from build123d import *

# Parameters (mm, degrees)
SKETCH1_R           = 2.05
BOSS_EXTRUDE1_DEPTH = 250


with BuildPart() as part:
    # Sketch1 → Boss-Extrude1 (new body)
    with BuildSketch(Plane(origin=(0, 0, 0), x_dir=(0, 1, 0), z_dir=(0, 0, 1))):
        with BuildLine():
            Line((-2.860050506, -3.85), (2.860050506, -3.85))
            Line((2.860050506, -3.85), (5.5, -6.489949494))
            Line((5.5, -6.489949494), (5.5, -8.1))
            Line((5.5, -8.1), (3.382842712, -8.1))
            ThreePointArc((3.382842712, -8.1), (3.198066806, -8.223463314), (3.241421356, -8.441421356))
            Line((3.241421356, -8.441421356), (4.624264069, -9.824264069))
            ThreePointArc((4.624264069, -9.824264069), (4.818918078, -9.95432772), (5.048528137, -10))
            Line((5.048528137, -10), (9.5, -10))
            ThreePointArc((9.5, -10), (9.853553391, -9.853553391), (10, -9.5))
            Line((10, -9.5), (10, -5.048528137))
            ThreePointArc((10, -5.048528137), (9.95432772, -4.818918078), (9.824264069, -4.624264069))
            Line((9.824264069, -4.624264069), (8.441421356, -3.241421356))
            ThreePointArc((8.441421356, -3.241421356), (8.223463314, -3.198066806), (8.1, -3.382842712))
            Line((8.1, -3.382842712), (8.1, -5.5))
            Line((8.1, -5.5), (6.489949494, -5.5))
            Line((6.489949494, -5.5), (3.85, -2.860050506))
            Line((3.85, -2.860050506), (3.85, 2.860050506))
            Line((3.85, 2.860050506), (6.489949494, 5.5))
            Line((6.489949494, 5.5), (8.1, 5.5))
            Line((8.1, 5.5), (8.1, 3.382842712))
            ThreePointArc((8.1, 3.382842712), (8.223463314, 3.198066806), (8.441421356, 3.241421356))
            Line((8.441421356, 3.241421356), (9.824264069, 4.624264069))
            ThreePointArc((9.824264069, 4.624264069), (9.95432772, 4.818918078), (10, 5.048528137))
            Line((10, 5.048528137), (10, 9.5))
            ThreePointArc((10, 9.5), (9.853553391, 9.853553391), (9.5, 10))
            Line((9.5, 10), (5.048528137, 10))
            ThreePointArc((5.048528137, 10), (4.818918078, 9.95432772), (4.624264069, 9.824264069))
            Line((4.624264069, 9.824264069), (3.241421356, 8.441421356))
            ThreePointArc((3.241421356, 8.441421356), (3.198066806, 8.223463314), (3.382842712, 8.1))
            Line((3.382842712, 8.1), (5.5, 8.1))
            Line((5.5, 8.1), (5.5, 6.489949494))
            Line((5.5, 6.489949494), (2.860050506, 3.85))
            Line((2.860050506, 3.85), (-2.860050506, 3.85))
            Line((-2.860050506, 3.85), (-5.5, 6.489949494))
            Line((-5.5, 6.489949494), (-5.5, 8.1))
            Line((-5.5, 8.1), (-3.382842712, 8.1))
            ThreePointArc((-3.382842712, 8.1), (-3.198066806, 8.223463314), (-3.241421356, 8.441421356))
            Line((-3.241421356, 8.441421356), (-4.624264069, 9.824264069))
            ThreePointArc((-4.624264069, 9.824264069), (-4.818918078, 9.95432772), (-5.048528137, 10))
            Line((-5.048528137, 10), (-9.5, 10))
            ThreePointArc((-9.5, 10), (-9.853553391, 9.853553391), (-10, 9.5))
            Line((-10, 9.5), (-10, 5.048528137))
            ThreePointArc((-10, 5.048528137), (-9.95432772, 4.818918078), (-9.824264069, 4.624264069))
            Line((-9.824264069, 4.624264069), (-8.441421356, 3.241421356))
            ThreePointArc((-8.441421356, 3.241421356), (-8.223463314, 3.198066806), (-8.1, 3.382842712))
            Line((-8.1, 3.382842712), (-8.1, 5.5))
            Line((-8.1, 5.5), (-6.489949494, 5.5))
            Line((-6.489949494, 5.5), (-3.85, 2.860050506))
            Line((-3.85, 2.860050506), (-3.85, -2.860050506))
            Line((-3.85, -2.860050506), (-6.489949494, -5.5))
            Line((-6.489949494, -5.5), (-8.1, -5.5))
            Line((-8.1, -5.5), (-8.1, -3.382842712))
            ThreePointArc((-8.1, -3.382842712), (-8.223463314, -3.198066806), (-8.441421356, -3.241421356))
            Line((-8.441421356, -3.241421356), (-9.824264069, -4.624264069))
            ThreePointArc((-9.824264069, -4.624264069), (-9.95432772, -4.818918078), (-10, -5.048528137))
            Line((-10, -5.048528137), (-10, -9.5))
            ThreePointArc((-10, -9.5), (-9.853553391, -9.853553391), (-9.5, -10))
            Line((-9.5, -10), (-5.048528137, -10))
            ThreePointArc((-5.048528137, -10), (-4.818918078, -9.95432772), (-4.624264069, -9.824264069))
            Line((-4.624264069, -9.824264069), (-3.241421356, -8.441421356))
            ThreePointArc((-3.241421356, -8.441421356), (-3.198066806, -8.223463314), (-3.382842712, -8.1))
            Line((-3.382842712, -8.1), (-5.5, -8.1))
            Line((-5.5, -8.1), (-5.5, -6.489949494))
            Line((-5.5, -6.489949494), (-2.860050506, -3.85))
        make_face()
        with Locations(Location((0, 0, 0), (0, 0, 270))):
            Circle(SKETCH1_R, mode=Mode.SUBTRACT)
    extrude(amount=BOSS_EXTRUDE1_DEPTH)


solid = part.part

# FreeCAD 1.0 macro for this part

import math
import FreeCAD as App
import Part
import Sketcher

V = App.Vector

doc = App.newDocument("Part")
body = doc.addObject("PartDesign::Body", "Body")

# Sketch on XY plane
sketch1 = body.newObject("Sketcher::SketchObject", "Sketch")
sketch1.AttachmentSupport = (doc.getObject("XY_Plane"), [""])
sketch1.MapMode = "FlatFace"
sketch1.addGeometry([
    Part.LineSegment(V(3.85, -2.86, 0), V(3.85, 2.86, 0)),  # 0
    Part.LineSegment(V(3.85, 2.86, 0), V(6.49, 5.5, 0)),  # 1
    Part.LineSegment(V(6.49, 5.5, 0), V(8.1, 5.5, 0)),  # 2
    Part.LineSegment(V(8.1, 5.5, 0), V(8.1, 3.38, 0)),  # 3
    Part.ArcOfCircle(Part.Circle(V(8.3, 3.38, 0), V(0, 0, 1), 0.2), math.radians(-180), math.radians(-45)),  # 4
    Part.LineSegment(V(8.44, 3.24, 0), V(9.82, 4.62, 0)),  # 5
    Part.ArcOfCircle(Part.Circle(V(9.4, 5.05, 0), V(0, 0, 1), 0.6), math.radians(-45), math.radians(0)),  # 6
    Part.LineSegment(V(10, 5.05, 0), V(10, 9.5, 0)),  # 7
    Part.ArcOfCircle(Part.Circle(V(9.5, 9.5, 0), V(0, 0, 1), 0.5), math.radians(0), math.radians(90)),  # 8
    Part.LineSegment(V(9.5, 10, 0), V(5.05, 10, 0)),  # 9
    Part.ArcOfCircle(Part.Circle(V(5.05, 9.4, 0), V(0, 0, 1), 0.6), math.radians(90), math.radians(135)),  # 10
    Part.LineSegment(V(4.62, 9.82, 0), V(3.24, 8.44, 0)),  # 11
    Part.ArcOfCircle(Part.Circle(V(3.38, 8.3, 0), V(0, 0, 1), 0.2), math.radians(135), math.radians(270)),  # 12
    Part.LineSegment(V(3.38, 8.1, 0), V(5.5, 8.1, 0)),  # 13
    Part.LineSegment(V(5.5, 8.1, 0), V(5.5, 6.49, 0)),  # 14
    Part.LineSegment(V(5.5, 6.49, 0), V(2.86, 3.85, 0)),  # 15
    Part.LineSegment(V(2.86, 3.85, 0), V(-2.86, 3.85, 0)),  # 16
    Part.LineSegment(V(-2.86, 3.85, 0), V(-5.5, 6.49, 0)),  # 17
    Part.LineSegment(V(-5.5, 6.49, 0), V(-5.5, 8.1, 0)),  # 18
    Part.LineSegment(V(-5.5, 8.1, 0), V(-3.38, 8.1, 0)),  # 19
    Part.ArcOfCircle(Part.Circle(V(-3.38, 8.3, 0), V(0, 0, 1), 0.2), math.radians(-90), math.radians(45)),  # 20
    Part.LineSegment(V(-3.24, 8.44, 0), V(-4.62, 9.82, 0)),  # 21
    Part.ArcOfCircle(Part.Circle(V(-5.05, 9.4, 0), V(0, 0, 1), 0.6), math.radians(45), math.radians(90)),  # 22
    Part.LineSegment(V(-5.05, 10, 0), V(-9.5, 10, 0)),  # 23
    Part.ArcOfCircle(Part.Circle(V(-9.5, 9.5, 0), V(0, 0, 1), 0.5), math.radians(90), math.radians(180)),  # 24
    Part.LineSegment(V(-10, 9.5, 0), V(-10, 5.05, 0)),  # 25
    Part.ArcOfCircle(Part.Circle(V(-9.4, 5.05, 0), V(0, 0, 1), 0.6), math.radians(180), math.radians(225)),  # 26
    Part.LineSegment(V(-9.82, 4.62, 0), V(-8.44, 3.24, 0)),  # 27
    Part.ArcOfCircle(Part.Circle(V(-8.3, 3.38, 0), V(0, 0, 1), 0.2), math.radians(-135), math.radians(0)),  # 28
    Part.LineSegment(V(-8.1, 3.38, 0), V(-8.1, 5.5, 0)),  # 29
    Part.LineSegment(V(-8.1, 5.5, 0), V(-6.49, 5.5, 0)),  # 30
    Part.LineSegment(V(-6.49, 5.5, 0), V(-3.85, 2.86, 0)),  # 31
    Part.LineSegment(V(-3.85, 2.86, 0), V(-3.85, -2.86, 0)),  # 32
    Part.LineSegment(V(-3.85, -2.86, 0), V(-6.49, -5.5, 0)),  # 33
    Part.LineSegment(V(-6.49, -5.5, 0), V(-8.1, -5.5, 0)),  # 34
    Part.LineSegment(V(-8.1, -5.5, 0), V(-8.1, -3.38, 0)),  # 35
    Part.ArcOfCircle(Part.Circle(V(-8.3, -3.38, 0), V(0, 0, 1), 0.2), math.radians(0), math.radians(135)),  # 36
    Part.LineSegment(V(-8.44, -3.24, 0), V(-9.82, -4.62, 0)),  # 37
    Part.ArcOfCircle(Part.Circle(V(-9.4, -5.05, 0), V(0, 0, 1), 0.6), math.radians(135), math.radians(180)),  # 38
    Part.LineSegment(V(-10, -5.05, 0), V(-10, -9.5, 0)),  # 39
    Part.ArcOfCircle(Part.Circle(V(-9.5, -9.5, 0), V(0, 0, 1), 0.5), math.radians(180), math.radians(270)),  # 40
    Part.LineSegment(V(-9.5, -10, 0), V(-5.05, -10, 0)),  # 41
    Part.ArcOfCircle(Part.Circle(V(-5.05, -9.4, 0), V(0, 0, 1), 0.6), math.radians(-90), math.radians(-45)),  # 42
    Part.LineSegment(V(-4.62, -9.82, 0), V(-3.24, -8.44, 0)),  # 43
    Part.ArcOfCircle(Part.Circle(V(-3.38, -8.3, 0), V(0, 0, 1), 0.2), math.radians(-45), math.radians(90)),  # 44
    Part.LineSegment(V(-3.38, -8.1, 0), V(-5.5, -8.1, 0)),  # 45
    Part.LineSegment(V(-5.5, -8.1, 0), V(-5.5, -6.49, 0)),  # 46
    Part.LineSegment(V(-5.5, -6.49, 0), V(-2.86, -3.85, 0)),  # 47
    Part.LineSegment(V(-2.86, -3.85, 0), V(2.86, -3.85, 0)),  # 48
    Part.LineSegment(V(2.86, -3.85, 0), V(5.5, -6.49, 0)),  # 49
    Part.LineSegment(V(5.5, -6.49, 0), V(5.5, -8.1, 0)),  # 50
    Part.LineSegment(V(5.5, -8.1, 0), V(3.38, -8.1, 0)),  # 51
    Part.ArcOfCircle(Part.Circle(V(3.38, -8.3, 0), V(0, 0, 1), 0.2), math.radians(90), math.radians(225)),  # 52
    Part.LineSegment(V(3.24, -8.44, 0), V(4.62, -9.82, 0)),  # 53
    Part.ArcOfCircle(Part.Circle(V(5.05, -9.4, 0), V(0, 0, 1), 0.6), math.radians(-135), math.radians(-90)),  # 54
    Part.LineSegment(V(5.05, -10, 0), V(9.5, -10, 0)),  # 55
    Part.ArcOfCircle(Part.Circle(V(9.5, -9.5, 0), V(0, 0, 1), 0.5), math.radians(-90), math.radians(0)),  # 56
    Part.LineSegment(V(10, -9.5, 0), V(10, -5.05, 0)),  # 57
    Part.ArcOfCircle(Part.Circle(V(9.4, -5.05, 0), V(0, 0, 1), 0.6), math.radians(0), math.radians(45)),  # 58
    Part.LineSegment(V(9.82, -4.62, 0), V(8.44, -3.24, 0)),  # 59
    Part.ArcOfCircle(Part.Circle(V(8.3, -3.38, 0), V(0, 0, 1), 0.2), math.radians(45), math.radians(180)),  # 60
    Part.LineSegment(V(8.1, -3.38, 0), V(8.1, -5.5, 0)),  # 61
    Part.LineSegment(V(8.1, -5.5, 0), V(6.49, -5.5, 0)),  # 62
    Part.LineSegment(V(6.49, -5.5, 0), V(3.85, -2.86, 0)),  # 63
    Part.Circle(V(0, 0, 0), V(0, 0, 1), 2.05),  # 64
], False)
sketch1.addConstraint([
    Sketcher.Constraint("Coincident", 0, 2, 1, 1),
    Sketcher.Constraint("Coincident", 1, 2, 2, 1),
    Sketcher.Constraint("Coincident", 2, 2, 3, 1),
    Sketcher.Constraint("Tangent", 3, 2, 4, 1),
    Sketcher.Constraint("Tangent", 4, 2, 5, 1),
    Sketcher.Constraint("Tangent", 5, 2, 6, 1),
    Sketcher.Constraint("Tangent", 6, 2, 7, 1),
    Sketcher.Constraint("Tangent", 7, 2, 8, 1),
    Sketcher.Constraint("Tangent", 8, 2, 9, 1),
    Sketcher.Constraint("Tangent", 9, 2, 10, 1),
    Sketcher.Constraint("Tangent", 10, 2, 11, 1),
    Sketcher.Constraint("Tangent", 11, 2, 12, 1),
    Sketcher.Constraint("Tangent", 12, 2, 13, 1),
    Sketcher.Constraint("Coincident", 13, 2, 14, 1),
    Sketcher.Constraint("Coincident", 14, 2, 15, 1),
    Sketcher.Constraint("Coincident", 15, 2, 16, 1),
    Sketcher.Constraint("Coincident", 16, 2, 17, 1),
    Sketcher.Constraint("Coincident", 17, 2, 18, 1),
    Sketcher.Constraint("Coincident", 18, 2, 19, 1),
    Sketcher.Constraint("Tangent", 19, 2, 20, 1),
    Sketcher.Constraint("Tangent", 20, 2, 21, 1),
    Sketcher.Constraint("Tangent", 21, 2, 22, 1),
    Sketcher.Constraint("Tangent", 22, 2, 23, 1),
    Sketcher.Constraint("Tangent", 23, 2, 24, 1),
    Sketcher.Constraint("Tangent", 24, 2, 25, 1),
    Sketcher.Constraint("Tangent", 25, 2, 26, 1),
    Sketcher.Constraint("Tangent", 26, 2, 27, 1),
    Sketcher.Constraint("Tangent", 27, 2, 28, 1),
    Sketcher.Constraint("Tangent", 28, 2, 29, 1),
    Sketcher.Constraint("Coincident", 29, 2, 30, 1),
    Sketcher.Constraint("Coincident", 30, 2, 31, 1),
    Sketcher.Constraint("Coincident", 31, 2, 32, 1),
    Sketcher.Constraint("Coincident", 32, 2, 33, 1),
    Sketcher.Constraint("Coincident", 33, 2, 34, 1),
    Sketcher.Constraint("Coincident", 34, 2, 35, 1),
    Sketcher.Constraint("Tangent", 35, 2, 36, 1),
    Sketcher.Constraint("Tangent", 36, 2, 37, 1),
    Sketcher.Constraint("Tangent", 37, 2, 38, 1),
    Sketcher.Constraint("Tangent", 38, 2, 39, 1),
    Sketcher.Constraint("Tangent", 39, 2, 40, 1),
    Sketcher.Constraint("Tangent", 40, 2, 41, 1),
    Sketcher.Constraint("Tangent", 41, 2, 42, 1),
    Sketcher.Constraint("Tangent", 42, 2, 43, 1),
    Sketcher.Constraint("Tangent", 43, 2, 44, 1),
    Sketcher.Constraint("Tangent", 44, 2, 45, 1),
    Sketcher.Constraint("Coincident", 45, 2, 46, 1),
    Sketcher.Constraint("Coincident", 46, 2, 47, 1),
    Sketcher.Constraint("Coincident", 47, 2, 48, 1),
    Sketcher.Constraint("Coincident", 48, 2, 49, 1),
    Sketcher.Constraint("Coincident", 49, 2, 50, 1),
    Sketcher.Constraint("Coincident", 50, 2, 51, 1),
    Sketcher.Constraint("Tangent", 51, 2, 52, 1),
    Sketcher.Constraint("Tangent", 52, 2, 53, 1),
    Sketcher.Constraint("Tangent", 53, 2, 54, 1),
    Sketcher.Constraint("Tangent", 54, 2, 55, 1),
    Sketcher.Constraint("Tangent", 55, 2, 56, 1),
    Sketcher.Constraint("Tangent", 56, 2, 57, 1),
    Sketcher.Constraint("Tangent", 57, 2, 58, 1),
    Sketcher.Constraint("Tangent", 58, 2, 59, 1),
    Sketcher.Constraint("Tangent", 59, 2, 60, 1),
    Sketcher.Constraint("Tangent", 60, 2, 61, 1),
    Sketcher.Constraint("Coincident", 61, 2, 62, 1),
    Sketcher.Constraint("Coincident", 62, 2, 63, 1),
    Sketcher.Constraint("Coincident", 63, 2, 0, 1),
    Sketcher.Constraint("Vertical", 0),
    Sketcher.Constraint("Horizontal", 2),
    Sketcher.Constraint("Vertical", 3),
    Sketcher.Constraint("Vertical", 7),
    Sketcher.Constraint("Horizontal", 9),
    Sketcher.Constraint("Horizontal", 13),
    Sketcher.Constraint("Vertical", 14),
    Sketcher.Constraint("Horizontal", 16),
    Sketcher.Constraint("Vertical", 18),
    Sketcher.Constraint("Horizontal", 19),
    Sketcher.Constraint("Horizontal", 23),
    Sketcher.Constraint("Vertical", 25),
    Sketcher.Constraint("Vertical", 29),
    Sketcher.Constraint("Horizontal", 30),
    Sketcher.Constraint("Vertical", 32),
    Sketcher.Constraint("Horizontal", 34),
    Sketcher.Constraint("Vertical", 35),
    Sketcher.Constraint("Vertical", 39),
    Sketcher.Constraint("Horizontal", 41),
    Sketcher.Constraint("Horizontal", 45),
    Sketcher.Constraint("Vertical", 46),
    Sketcher.Constraint("Horizontal", 48),
    Sketcher.Constraint("Vertical", 50),
    Sketcher.Constraint("Horizontal", 51),
    Sketcher.Constraint("Horizontal", 55),
    Sketcher.Constraint("Vertical", 57),
    Sketcher.Constraint("Vertical", 61),
    Sketcher.Constraint("Horizontal", 62),
    Sketcher.Constraint("Coincident", 64, 3, -1, 1),
    Sketcher.Constraint("Equal", 6, 10),
    Sketcher.Constraint("Equal", 4, 12),
    Sketcher.Constraint("Equal", 12, 20),
    Sketcher.Constraint("Equal", 10, 22),
    Sketcher.Constraint("Equal", 8, 24),
    Sketcher.Constraint("Equal", 22, 26),
    Sketcher.Constraint("Equal", 20, 28),
    Sketcher.Constraint("Equal", 28, 36),
    Sketcher.Constraint("Equal", 26, 38),
    Sketcher.Constraint("Equal", 24, 40),
    Sketcher.Constraint("Equal", 38, 42),
    Sketcher.Constraint("Equal", 36, 44),
    Sketcher.Constraint("Equal", 44, 52),
    Sketcher.Constraint("Equal", 42, 54),
    Sketcher.Constraint("Equal", 40, 56),
    Sketcher.Constraint("Equal", 54, 58),
    Sketcher.Constraint("Equal", 52, 60),
    Sketcher.Constraint("Symmetric", 4, 3, 36, 3, -1, 1),
    Sketcher.Constraint("Symmetric", 6, 3, 38, 3, -1, 1),
    Sketcher.Constraint("Symmetric", 10, 3, 42, 3, -1, 1),
    Sketcher.Constraint("Symmetric", 12, 3, 44, 3, -1, 1),
    Sketcher.Constraint("Symmetric", 20, 3, 52, 3, -1, 1),
    Sketcher.Constraint("Symmetric", 22, 3, 54, 3, -1, 1),
    Sketcher.Constraint("Symmetric", 26, 3, 58, 3, -1, 1),
    Sketcher.Constraint("Symmetric", 28, 3, 60, 3, -1, 1),
    Sketcher.Constraint("Symmetric", 0, 2, 32, 2, -1, 1),
    Sketcher.Constraint("Symmetric", 1, 2, 33, 2, -1, 1),
    Sketcher.Constraint("Symmetric", 14, 2, 46, 2, -1, 1),
    Sketcher.Constraint("Symmetric", 15, 2, 47, 2, -1, 1),
    Sketcher.Constraint("Symmetric", 17, 2, 49, 2, -1, 1),
    Sketcher.Constraint("Symmetric", 30, 2, 62, 2, -1, 1),
    Sketcher.Constraint("Symmetric", 12, 3, 20, 3, -2),
    Sketcher.Constraint("Symmetric", 10, 3, 22, 3, -2),
    Sketcher.Constraint("Symmetric", 6, 3, 26, 3, -2),
    Sketcher.Constraint("Symmetric", 4, 3, 28, 3, -2),
    Sketcher.Constraint("Symmetric", 14, 2, 17, 2, -2),
    Sketcher.Constraint("Symmetric", 1, 2, 30, 2, -2),
    Sketcher.Constraint("Parallel", 1, 5),
    Sketcher.Constraint("Parallel", 5, 11),
    Sketcher.Constraint("Parallel", 11, 15),
    Sketcher.Constraint("Perpendicular", 15, 17),
    Sketcher.Constraint("Parallel", 17, 21),
    Sketcher.Constraint("Parallel", 27, 31),
    Sketcher.Constraint("Perpendicular", 47, 49),
    Sketcher.Constraint("Parallel", 59, 63),
    Sketcher.Constraint("Equal", 48, 0),
    Sketcher.Constraint("Equal", 51, 3),
    Sketcher.Constraint("Equal", 55, 7),
    Sketcher.Constraint("Equal", 62, 14),
    Sketcher.Constraint("Equal", 5, 11),
    Sketcher.Constraint("Equal", 1, 15),
    Sketcher.Constraint("Diameter", 64, 4.1),
    Sketcher.Constraint("Radius", 4, 0.2),
    Sketcher.Constraint("Radius", 6, 0.6),
    Sketcher.Constraint("Radius", 8, 0.5),
    Sketcher.Constraint("DistanceX", -1, 1, 6, 2, 10.0),
    Sketcher.Constraint("DistanceX", -1, 1, 4, 3, 8.3),
    Sketcher.Constraint("DistanceY", -1, 1, 1, 2, 5.5),
    Sketcher.Constraint("DistanceX", -1, 1, 0, 2, 3.85),
    Sketcher.Constraint("DistanceX", 16, 2, 16, 1, 5.720101),
    Sketcher.Constraint("DistanceX", 9, 2, 9, 1, 4.451472),
])
pad1 = body.newObject("PartDesign::Pad", "Pad")
pad1.Profile = sketch1
pad1.Length = 250

doc.recompute()
